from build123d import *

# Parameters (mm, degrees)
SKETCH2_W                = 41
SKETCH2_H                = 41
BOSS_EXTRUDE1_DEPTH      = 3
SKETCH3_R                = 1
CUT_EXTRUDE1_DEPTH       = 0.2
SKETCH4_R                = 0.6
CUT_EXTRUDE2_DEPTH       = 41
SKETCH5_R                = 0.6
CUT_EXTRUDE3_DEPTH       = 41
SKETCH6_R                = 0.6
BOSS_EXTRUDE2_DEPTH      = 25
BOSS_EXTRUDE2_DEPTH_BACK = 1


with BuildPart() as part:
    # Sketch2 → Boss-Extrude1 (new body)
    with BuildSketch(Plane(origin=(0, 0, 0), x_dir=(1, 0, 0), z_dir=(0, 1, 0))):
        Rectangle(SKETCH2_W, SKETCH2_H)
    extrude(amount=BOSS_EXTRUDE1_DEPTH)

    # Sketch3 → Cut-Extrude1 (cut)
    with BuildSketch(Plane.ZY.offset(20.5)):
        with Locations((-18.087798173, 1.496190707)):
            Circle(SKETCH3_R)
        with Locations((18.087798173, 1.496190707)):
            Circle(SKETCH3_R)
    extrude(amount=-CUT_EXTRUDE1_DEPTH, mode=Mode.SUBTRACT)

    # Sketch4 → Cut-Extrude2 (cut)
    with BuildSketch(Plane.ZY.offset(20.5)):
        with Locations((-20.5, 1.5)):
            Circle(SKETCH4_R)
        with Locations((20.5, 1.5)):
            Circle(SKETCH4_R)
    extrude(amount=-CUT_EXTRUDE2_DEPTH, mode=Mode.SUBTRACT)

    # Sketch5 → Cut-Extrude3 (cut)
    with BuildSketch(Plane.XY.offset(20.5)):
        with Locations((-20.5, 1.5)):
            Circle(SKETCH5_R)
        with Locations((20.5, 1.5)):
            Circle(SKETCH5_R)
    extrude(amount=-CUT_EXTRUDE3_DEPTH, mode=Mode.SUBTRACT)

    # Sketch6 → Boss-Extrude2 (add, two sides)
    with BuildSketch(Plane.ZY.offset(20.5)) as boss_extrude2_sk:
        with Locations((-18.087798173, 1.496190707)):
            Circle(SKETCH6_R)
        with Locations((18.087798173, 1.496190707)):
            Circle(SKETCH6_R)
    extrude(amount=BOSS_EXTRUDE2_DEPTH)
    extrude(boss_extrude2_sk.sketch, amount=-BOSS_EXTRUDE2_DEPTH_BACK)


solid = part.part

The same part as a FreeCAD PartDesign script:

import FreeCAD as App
import Part
import Sketcher
from FreeCAD import Vector

doc = App.newDocument("Part")
params = doc.addObject("Spreadsheet::Sheet", "Params")
for row, (alias, value) in enumerate([
    ("sketch1_width", "41 mm"),
    ("pad1_length", "3 mm"),
    ("sketch2_diameter", "2 mm"),
    ("pocket1_length", "0.2 mm"),
    ("sketch3_diameter", "1.2 mm"),
    ("pocket2_length", "41 mm"),
    ("sketch4_diameter", "1.2 mm"),
    ("pocket3_length", "41 mm"),
    ("sketch5_diameter", "1.2 mm"),
    ("pad2_length", "25 mm"),
    ("pad2_length2", "1 mm"),
], start=1):
    params.set(f"A{row}", alias)
    params.set(f"B{row}", "=" + value)
    params.setAlias(f"B{row}", alias)

body = doc.addObject("PartDesign::Body", "Body")

# Sketch on XZ plane
sketch1 = doc.addObject("Sketcher::SketchObject", "Sketch")
body.addObject(sketch1)
sketch1.AttachmentSupport = (doc.XZ_Plane, [""])
sketch1.MapMode = "FlatFace"
sketch1.addGeometry(Part.LineSegment(Vector(-20, -20, 0), Vector(-20, 20, 0)), False)
sketch1.addGeometry(Part.LineSegment(Vector(-20, 20, 0), Vector(20, 20, 0)), False)
sketch1.addGeometry(Part.LineSegment(Vector(20, 20, 0), Vector(20, -20, 0)), False)
sketch1.addGeometry(Part.LineSegment(Vector(20, -20, 0), Vector(-20, -20, 0)), False)
sketch1.addConstraint(Sketcher.Constraint("Coincident", 0, 2, 1, 1))
sketch1.addConstraint(Sketcher.Constraint("Coincident", 1, 2, 2, 1))
sketch1.addConstraint(Sketcher.Constraint("Coincident", 2, 2, 3, 1))
sketch1.addConstraint(Sketcher.Constraint("Coincident", 3, 2, 0, 1))
sketch1.addConstraint(Sketcher.Constraint("Vertical", 0))
sketch1.addConstraint(Sketcher.Constraint("Horizontal", 1))
sketch1.addConstraint(Sketcher.Constraint("Vertical", 2))
sketch1.addConstraint(Sketcher.Constraint("Horizontal", 3))
sketch1.addConstraint(Sketcher.Constraint("Symmetric", 0, 2, 2, 2, -1, 1))
sketch1.addConstraint(Sketcher.Constraint("Equal", 3, 0))
sketch1.addConstraint(Sketcher.Constraint("DistanceX", 1, 1, 1, 2, 41.0))
sketch1.setExpression("Constraints[10]", "Params.sketch1_width")
pad1 = doc.addObject("PartDesign::Pad", "Pad")
body.addObject(pad1)
pad1.Profile = sketch1
pad1.setExpression("Length", "Params.pad1_length")
pad1.Reversed = True

# Sketch on YZ plane
sketch2 = doc.addObject("Sketcher::SketchObject", "Sketch001")
body.addObject(sketch2)
sketch2.AttachmentSupport = (doc.YZ_Plane, [""])
sketch2.MapMode = "FlatFace"
sketch2.AttachmentOffset = App.Placement(Vector(0, 0, -20.5), App.Rotation())
sketch2.addGeometry(Part.Circle(Vector(1.5, -18.1, 0), Vector(0, 0, 1), 1), False)
sketch2.addGeometry(Part.Circle(Vector(1.5, 18.1, 0), Vector(0, 0, 1), 1), False)
sketch2.addConstraint(Sketcher.Constraint("Equal", 0, 1))
sketch2.addConstraint(Sketcher.Constraint("Symmetric", 0, 3, 1, 3, -1))
sketch2.addConstraint(Sketcher.Constraint("Diameter", 0, 2.0))
sketch2.addConstraint(Sketcher.Constraint("DistanceY", 0, 3, -1, 1, 18.087798))
sketch2.addConstraint(Sketcher.Constraint("DistanceX", -1, 1, 0, 3, 1.496191))
sketch2.setExpression("Constraints[2]", "Params.sketch2_diameter")
pocket1 = doc.addObject("PartDesign::Pocket", "Pocket")
body.addObject(pocket1)
pocket1.Profile = sketch2
pocket1.setExpression("Length", "Params.pocket1_length")
pocket1.Reversed = True

# Sketch on YZ plane
sketch3 = doc.addObject("Sketcher::SketchObject", "Sketch002")
body.addObject(sketch3)
sketch3.AttachmentSupport = (doc.YZ_Plane, [""])
sketch3.MapMode = "FlatFace"
sketch3.AttachmentOffset = App.Placement(Vector(0, 0, -20.5), App.Rotation())
sketch3.addGeometry(Part.Circle(Vector(1.5, -20.5, 0), Vector(0, 0, 1), 0.6), False)
sketch3.addGeometry(Part.Circle(Vector(1.5, 20.5, 0), Vector(0, 0, 1), 0.6), False)
sketch3.addConstraint(Sketcher.Constraint("Equal", 0, 1))
sketch3.addConstraint(Sketcher.Constraint("Symmetric", 0, 3, 1, 3, -1))
sketch3.addConstraint(Sketcher.Constraint("Diameter", 0, 1.2))
sketch3.addConstraint(Sketcher.Constraint("DistanceY", 0, 3, 1, 3, 41.0))
sketch3.addConstraint(Sketcher.Constraint("DistanceX", -1, 1, 0, 3, 1.5))
sketch3.setExpression("Constraints[2]", "Params.sketch3_diameter")
pocket2 = doc.addObject("PartDesign::Pocket", "Pocket001")
body.addObject(pocket2)
pocket2.Profile = sketch3
pocket2.setExpression("Length", "Params.pocket2_length")
pocket2.Reversed = True

# Sketch on XY plane
sketch4 = doc.addObject("Sketcher::SketchObject", "Sketch003")
body.addObject(sketch4)
sketch4.AttachmentSupport = (doc.XY_Plane, [""])
sketch4.MapMode = "FlatFace"
sketch4.AttachmentOffset = App.Placement(Vector(0, 0, 20.5), App.Rotation())
sketch4.addGeometry(Part.Circle(Vector(-20.5, 1.5, 0), Vector(0, 0, 1), 0.6), False)
sketch4.addGeometry(Part.Circle(Vector(20.5, 1.5, 0), Vector(0, 0, 1), 0.6), False)
sketch4.addConstraint(Sketcher.Constraint("Equal", 0, 1))
sketch4.addConstraint(Sketcher.Constraint("Symmetric", 0, 3, 1, 3, -2))
sketch4.addConstraint(Sketcher.Constraint("Diameter", 0, 1.2))
sketch4.addConstraint(Sketcher.Constraint("DistanceX", 0, 3, 1, 3, 41.0))
sketch4.addConstraint(Sketcher.Constraint("DistanceY", -1, 1, 0, 3, 1.5))
sketch4.setExpression("Constraints[2]", "Params.sketch4_diameter")
pocket3 = doc.addObject("PartDesign::Pocket", "Pocket002")
body.addObject(pocket3)
pocket3.Profile = sketch4
pocket3.setExpression("Length", "Params.pocket3_length")

# Sketch on YZ plane
sketch5 = doc.addObject("Sketcher::SketchObject", "Sketch004")
body.addObject(sketch5)
sketch5.AttachmentSupport = (doc.YZ_Plane, [""])
sketch5.MapMode = "FlatFace"
sketch5.AttachmentOffset = App.Placement(Vector(0, 0, -20.5), App.Rotation())
sketch5.addGeometry(Part.Circle(Vector(1.5, -18.1, 0), Vector(0, 0, 1), 0.6), False)
sketch5.addGeometry(Part.Circle(Vector(1.5, 18.1, 0), Vector(0, 0, 1), 0.6), False)
sketch5.addConstraint(Sketcher.Constraint("Equal", 0, 1))
sketch5.addConstraint(Sketcher.Constraint("Symmetric", 0, 3, 1, 3, -1))
sketch5.addConstraint(Sketcher.Constraint("Diameter", 0, 1.2))
sketch5.addConstraint(Sketcher.Constraint("DistanceY", 0, 3, -1, 1, 18.087798))
sketch5.addConstraint(Sketcher.Constraint("DistanceX", -1, 1, 0, 3, 1.496191))
sketch5.setExpression("Constraints[2]", "Params.sketch5_diameter")
pad2 = doc.addObject("PartDesign::Pad", "Pad001")
body.addObject(pad2)
pad2.Profile = sketch5
pad2.Type = "TwoLengths"
pad2.setExpression("Length", "Params.pad2_length")
pad2.setExpression("Length2", "Params.pad2_length2")
pad2.Reversed = True

doc.recompute()
